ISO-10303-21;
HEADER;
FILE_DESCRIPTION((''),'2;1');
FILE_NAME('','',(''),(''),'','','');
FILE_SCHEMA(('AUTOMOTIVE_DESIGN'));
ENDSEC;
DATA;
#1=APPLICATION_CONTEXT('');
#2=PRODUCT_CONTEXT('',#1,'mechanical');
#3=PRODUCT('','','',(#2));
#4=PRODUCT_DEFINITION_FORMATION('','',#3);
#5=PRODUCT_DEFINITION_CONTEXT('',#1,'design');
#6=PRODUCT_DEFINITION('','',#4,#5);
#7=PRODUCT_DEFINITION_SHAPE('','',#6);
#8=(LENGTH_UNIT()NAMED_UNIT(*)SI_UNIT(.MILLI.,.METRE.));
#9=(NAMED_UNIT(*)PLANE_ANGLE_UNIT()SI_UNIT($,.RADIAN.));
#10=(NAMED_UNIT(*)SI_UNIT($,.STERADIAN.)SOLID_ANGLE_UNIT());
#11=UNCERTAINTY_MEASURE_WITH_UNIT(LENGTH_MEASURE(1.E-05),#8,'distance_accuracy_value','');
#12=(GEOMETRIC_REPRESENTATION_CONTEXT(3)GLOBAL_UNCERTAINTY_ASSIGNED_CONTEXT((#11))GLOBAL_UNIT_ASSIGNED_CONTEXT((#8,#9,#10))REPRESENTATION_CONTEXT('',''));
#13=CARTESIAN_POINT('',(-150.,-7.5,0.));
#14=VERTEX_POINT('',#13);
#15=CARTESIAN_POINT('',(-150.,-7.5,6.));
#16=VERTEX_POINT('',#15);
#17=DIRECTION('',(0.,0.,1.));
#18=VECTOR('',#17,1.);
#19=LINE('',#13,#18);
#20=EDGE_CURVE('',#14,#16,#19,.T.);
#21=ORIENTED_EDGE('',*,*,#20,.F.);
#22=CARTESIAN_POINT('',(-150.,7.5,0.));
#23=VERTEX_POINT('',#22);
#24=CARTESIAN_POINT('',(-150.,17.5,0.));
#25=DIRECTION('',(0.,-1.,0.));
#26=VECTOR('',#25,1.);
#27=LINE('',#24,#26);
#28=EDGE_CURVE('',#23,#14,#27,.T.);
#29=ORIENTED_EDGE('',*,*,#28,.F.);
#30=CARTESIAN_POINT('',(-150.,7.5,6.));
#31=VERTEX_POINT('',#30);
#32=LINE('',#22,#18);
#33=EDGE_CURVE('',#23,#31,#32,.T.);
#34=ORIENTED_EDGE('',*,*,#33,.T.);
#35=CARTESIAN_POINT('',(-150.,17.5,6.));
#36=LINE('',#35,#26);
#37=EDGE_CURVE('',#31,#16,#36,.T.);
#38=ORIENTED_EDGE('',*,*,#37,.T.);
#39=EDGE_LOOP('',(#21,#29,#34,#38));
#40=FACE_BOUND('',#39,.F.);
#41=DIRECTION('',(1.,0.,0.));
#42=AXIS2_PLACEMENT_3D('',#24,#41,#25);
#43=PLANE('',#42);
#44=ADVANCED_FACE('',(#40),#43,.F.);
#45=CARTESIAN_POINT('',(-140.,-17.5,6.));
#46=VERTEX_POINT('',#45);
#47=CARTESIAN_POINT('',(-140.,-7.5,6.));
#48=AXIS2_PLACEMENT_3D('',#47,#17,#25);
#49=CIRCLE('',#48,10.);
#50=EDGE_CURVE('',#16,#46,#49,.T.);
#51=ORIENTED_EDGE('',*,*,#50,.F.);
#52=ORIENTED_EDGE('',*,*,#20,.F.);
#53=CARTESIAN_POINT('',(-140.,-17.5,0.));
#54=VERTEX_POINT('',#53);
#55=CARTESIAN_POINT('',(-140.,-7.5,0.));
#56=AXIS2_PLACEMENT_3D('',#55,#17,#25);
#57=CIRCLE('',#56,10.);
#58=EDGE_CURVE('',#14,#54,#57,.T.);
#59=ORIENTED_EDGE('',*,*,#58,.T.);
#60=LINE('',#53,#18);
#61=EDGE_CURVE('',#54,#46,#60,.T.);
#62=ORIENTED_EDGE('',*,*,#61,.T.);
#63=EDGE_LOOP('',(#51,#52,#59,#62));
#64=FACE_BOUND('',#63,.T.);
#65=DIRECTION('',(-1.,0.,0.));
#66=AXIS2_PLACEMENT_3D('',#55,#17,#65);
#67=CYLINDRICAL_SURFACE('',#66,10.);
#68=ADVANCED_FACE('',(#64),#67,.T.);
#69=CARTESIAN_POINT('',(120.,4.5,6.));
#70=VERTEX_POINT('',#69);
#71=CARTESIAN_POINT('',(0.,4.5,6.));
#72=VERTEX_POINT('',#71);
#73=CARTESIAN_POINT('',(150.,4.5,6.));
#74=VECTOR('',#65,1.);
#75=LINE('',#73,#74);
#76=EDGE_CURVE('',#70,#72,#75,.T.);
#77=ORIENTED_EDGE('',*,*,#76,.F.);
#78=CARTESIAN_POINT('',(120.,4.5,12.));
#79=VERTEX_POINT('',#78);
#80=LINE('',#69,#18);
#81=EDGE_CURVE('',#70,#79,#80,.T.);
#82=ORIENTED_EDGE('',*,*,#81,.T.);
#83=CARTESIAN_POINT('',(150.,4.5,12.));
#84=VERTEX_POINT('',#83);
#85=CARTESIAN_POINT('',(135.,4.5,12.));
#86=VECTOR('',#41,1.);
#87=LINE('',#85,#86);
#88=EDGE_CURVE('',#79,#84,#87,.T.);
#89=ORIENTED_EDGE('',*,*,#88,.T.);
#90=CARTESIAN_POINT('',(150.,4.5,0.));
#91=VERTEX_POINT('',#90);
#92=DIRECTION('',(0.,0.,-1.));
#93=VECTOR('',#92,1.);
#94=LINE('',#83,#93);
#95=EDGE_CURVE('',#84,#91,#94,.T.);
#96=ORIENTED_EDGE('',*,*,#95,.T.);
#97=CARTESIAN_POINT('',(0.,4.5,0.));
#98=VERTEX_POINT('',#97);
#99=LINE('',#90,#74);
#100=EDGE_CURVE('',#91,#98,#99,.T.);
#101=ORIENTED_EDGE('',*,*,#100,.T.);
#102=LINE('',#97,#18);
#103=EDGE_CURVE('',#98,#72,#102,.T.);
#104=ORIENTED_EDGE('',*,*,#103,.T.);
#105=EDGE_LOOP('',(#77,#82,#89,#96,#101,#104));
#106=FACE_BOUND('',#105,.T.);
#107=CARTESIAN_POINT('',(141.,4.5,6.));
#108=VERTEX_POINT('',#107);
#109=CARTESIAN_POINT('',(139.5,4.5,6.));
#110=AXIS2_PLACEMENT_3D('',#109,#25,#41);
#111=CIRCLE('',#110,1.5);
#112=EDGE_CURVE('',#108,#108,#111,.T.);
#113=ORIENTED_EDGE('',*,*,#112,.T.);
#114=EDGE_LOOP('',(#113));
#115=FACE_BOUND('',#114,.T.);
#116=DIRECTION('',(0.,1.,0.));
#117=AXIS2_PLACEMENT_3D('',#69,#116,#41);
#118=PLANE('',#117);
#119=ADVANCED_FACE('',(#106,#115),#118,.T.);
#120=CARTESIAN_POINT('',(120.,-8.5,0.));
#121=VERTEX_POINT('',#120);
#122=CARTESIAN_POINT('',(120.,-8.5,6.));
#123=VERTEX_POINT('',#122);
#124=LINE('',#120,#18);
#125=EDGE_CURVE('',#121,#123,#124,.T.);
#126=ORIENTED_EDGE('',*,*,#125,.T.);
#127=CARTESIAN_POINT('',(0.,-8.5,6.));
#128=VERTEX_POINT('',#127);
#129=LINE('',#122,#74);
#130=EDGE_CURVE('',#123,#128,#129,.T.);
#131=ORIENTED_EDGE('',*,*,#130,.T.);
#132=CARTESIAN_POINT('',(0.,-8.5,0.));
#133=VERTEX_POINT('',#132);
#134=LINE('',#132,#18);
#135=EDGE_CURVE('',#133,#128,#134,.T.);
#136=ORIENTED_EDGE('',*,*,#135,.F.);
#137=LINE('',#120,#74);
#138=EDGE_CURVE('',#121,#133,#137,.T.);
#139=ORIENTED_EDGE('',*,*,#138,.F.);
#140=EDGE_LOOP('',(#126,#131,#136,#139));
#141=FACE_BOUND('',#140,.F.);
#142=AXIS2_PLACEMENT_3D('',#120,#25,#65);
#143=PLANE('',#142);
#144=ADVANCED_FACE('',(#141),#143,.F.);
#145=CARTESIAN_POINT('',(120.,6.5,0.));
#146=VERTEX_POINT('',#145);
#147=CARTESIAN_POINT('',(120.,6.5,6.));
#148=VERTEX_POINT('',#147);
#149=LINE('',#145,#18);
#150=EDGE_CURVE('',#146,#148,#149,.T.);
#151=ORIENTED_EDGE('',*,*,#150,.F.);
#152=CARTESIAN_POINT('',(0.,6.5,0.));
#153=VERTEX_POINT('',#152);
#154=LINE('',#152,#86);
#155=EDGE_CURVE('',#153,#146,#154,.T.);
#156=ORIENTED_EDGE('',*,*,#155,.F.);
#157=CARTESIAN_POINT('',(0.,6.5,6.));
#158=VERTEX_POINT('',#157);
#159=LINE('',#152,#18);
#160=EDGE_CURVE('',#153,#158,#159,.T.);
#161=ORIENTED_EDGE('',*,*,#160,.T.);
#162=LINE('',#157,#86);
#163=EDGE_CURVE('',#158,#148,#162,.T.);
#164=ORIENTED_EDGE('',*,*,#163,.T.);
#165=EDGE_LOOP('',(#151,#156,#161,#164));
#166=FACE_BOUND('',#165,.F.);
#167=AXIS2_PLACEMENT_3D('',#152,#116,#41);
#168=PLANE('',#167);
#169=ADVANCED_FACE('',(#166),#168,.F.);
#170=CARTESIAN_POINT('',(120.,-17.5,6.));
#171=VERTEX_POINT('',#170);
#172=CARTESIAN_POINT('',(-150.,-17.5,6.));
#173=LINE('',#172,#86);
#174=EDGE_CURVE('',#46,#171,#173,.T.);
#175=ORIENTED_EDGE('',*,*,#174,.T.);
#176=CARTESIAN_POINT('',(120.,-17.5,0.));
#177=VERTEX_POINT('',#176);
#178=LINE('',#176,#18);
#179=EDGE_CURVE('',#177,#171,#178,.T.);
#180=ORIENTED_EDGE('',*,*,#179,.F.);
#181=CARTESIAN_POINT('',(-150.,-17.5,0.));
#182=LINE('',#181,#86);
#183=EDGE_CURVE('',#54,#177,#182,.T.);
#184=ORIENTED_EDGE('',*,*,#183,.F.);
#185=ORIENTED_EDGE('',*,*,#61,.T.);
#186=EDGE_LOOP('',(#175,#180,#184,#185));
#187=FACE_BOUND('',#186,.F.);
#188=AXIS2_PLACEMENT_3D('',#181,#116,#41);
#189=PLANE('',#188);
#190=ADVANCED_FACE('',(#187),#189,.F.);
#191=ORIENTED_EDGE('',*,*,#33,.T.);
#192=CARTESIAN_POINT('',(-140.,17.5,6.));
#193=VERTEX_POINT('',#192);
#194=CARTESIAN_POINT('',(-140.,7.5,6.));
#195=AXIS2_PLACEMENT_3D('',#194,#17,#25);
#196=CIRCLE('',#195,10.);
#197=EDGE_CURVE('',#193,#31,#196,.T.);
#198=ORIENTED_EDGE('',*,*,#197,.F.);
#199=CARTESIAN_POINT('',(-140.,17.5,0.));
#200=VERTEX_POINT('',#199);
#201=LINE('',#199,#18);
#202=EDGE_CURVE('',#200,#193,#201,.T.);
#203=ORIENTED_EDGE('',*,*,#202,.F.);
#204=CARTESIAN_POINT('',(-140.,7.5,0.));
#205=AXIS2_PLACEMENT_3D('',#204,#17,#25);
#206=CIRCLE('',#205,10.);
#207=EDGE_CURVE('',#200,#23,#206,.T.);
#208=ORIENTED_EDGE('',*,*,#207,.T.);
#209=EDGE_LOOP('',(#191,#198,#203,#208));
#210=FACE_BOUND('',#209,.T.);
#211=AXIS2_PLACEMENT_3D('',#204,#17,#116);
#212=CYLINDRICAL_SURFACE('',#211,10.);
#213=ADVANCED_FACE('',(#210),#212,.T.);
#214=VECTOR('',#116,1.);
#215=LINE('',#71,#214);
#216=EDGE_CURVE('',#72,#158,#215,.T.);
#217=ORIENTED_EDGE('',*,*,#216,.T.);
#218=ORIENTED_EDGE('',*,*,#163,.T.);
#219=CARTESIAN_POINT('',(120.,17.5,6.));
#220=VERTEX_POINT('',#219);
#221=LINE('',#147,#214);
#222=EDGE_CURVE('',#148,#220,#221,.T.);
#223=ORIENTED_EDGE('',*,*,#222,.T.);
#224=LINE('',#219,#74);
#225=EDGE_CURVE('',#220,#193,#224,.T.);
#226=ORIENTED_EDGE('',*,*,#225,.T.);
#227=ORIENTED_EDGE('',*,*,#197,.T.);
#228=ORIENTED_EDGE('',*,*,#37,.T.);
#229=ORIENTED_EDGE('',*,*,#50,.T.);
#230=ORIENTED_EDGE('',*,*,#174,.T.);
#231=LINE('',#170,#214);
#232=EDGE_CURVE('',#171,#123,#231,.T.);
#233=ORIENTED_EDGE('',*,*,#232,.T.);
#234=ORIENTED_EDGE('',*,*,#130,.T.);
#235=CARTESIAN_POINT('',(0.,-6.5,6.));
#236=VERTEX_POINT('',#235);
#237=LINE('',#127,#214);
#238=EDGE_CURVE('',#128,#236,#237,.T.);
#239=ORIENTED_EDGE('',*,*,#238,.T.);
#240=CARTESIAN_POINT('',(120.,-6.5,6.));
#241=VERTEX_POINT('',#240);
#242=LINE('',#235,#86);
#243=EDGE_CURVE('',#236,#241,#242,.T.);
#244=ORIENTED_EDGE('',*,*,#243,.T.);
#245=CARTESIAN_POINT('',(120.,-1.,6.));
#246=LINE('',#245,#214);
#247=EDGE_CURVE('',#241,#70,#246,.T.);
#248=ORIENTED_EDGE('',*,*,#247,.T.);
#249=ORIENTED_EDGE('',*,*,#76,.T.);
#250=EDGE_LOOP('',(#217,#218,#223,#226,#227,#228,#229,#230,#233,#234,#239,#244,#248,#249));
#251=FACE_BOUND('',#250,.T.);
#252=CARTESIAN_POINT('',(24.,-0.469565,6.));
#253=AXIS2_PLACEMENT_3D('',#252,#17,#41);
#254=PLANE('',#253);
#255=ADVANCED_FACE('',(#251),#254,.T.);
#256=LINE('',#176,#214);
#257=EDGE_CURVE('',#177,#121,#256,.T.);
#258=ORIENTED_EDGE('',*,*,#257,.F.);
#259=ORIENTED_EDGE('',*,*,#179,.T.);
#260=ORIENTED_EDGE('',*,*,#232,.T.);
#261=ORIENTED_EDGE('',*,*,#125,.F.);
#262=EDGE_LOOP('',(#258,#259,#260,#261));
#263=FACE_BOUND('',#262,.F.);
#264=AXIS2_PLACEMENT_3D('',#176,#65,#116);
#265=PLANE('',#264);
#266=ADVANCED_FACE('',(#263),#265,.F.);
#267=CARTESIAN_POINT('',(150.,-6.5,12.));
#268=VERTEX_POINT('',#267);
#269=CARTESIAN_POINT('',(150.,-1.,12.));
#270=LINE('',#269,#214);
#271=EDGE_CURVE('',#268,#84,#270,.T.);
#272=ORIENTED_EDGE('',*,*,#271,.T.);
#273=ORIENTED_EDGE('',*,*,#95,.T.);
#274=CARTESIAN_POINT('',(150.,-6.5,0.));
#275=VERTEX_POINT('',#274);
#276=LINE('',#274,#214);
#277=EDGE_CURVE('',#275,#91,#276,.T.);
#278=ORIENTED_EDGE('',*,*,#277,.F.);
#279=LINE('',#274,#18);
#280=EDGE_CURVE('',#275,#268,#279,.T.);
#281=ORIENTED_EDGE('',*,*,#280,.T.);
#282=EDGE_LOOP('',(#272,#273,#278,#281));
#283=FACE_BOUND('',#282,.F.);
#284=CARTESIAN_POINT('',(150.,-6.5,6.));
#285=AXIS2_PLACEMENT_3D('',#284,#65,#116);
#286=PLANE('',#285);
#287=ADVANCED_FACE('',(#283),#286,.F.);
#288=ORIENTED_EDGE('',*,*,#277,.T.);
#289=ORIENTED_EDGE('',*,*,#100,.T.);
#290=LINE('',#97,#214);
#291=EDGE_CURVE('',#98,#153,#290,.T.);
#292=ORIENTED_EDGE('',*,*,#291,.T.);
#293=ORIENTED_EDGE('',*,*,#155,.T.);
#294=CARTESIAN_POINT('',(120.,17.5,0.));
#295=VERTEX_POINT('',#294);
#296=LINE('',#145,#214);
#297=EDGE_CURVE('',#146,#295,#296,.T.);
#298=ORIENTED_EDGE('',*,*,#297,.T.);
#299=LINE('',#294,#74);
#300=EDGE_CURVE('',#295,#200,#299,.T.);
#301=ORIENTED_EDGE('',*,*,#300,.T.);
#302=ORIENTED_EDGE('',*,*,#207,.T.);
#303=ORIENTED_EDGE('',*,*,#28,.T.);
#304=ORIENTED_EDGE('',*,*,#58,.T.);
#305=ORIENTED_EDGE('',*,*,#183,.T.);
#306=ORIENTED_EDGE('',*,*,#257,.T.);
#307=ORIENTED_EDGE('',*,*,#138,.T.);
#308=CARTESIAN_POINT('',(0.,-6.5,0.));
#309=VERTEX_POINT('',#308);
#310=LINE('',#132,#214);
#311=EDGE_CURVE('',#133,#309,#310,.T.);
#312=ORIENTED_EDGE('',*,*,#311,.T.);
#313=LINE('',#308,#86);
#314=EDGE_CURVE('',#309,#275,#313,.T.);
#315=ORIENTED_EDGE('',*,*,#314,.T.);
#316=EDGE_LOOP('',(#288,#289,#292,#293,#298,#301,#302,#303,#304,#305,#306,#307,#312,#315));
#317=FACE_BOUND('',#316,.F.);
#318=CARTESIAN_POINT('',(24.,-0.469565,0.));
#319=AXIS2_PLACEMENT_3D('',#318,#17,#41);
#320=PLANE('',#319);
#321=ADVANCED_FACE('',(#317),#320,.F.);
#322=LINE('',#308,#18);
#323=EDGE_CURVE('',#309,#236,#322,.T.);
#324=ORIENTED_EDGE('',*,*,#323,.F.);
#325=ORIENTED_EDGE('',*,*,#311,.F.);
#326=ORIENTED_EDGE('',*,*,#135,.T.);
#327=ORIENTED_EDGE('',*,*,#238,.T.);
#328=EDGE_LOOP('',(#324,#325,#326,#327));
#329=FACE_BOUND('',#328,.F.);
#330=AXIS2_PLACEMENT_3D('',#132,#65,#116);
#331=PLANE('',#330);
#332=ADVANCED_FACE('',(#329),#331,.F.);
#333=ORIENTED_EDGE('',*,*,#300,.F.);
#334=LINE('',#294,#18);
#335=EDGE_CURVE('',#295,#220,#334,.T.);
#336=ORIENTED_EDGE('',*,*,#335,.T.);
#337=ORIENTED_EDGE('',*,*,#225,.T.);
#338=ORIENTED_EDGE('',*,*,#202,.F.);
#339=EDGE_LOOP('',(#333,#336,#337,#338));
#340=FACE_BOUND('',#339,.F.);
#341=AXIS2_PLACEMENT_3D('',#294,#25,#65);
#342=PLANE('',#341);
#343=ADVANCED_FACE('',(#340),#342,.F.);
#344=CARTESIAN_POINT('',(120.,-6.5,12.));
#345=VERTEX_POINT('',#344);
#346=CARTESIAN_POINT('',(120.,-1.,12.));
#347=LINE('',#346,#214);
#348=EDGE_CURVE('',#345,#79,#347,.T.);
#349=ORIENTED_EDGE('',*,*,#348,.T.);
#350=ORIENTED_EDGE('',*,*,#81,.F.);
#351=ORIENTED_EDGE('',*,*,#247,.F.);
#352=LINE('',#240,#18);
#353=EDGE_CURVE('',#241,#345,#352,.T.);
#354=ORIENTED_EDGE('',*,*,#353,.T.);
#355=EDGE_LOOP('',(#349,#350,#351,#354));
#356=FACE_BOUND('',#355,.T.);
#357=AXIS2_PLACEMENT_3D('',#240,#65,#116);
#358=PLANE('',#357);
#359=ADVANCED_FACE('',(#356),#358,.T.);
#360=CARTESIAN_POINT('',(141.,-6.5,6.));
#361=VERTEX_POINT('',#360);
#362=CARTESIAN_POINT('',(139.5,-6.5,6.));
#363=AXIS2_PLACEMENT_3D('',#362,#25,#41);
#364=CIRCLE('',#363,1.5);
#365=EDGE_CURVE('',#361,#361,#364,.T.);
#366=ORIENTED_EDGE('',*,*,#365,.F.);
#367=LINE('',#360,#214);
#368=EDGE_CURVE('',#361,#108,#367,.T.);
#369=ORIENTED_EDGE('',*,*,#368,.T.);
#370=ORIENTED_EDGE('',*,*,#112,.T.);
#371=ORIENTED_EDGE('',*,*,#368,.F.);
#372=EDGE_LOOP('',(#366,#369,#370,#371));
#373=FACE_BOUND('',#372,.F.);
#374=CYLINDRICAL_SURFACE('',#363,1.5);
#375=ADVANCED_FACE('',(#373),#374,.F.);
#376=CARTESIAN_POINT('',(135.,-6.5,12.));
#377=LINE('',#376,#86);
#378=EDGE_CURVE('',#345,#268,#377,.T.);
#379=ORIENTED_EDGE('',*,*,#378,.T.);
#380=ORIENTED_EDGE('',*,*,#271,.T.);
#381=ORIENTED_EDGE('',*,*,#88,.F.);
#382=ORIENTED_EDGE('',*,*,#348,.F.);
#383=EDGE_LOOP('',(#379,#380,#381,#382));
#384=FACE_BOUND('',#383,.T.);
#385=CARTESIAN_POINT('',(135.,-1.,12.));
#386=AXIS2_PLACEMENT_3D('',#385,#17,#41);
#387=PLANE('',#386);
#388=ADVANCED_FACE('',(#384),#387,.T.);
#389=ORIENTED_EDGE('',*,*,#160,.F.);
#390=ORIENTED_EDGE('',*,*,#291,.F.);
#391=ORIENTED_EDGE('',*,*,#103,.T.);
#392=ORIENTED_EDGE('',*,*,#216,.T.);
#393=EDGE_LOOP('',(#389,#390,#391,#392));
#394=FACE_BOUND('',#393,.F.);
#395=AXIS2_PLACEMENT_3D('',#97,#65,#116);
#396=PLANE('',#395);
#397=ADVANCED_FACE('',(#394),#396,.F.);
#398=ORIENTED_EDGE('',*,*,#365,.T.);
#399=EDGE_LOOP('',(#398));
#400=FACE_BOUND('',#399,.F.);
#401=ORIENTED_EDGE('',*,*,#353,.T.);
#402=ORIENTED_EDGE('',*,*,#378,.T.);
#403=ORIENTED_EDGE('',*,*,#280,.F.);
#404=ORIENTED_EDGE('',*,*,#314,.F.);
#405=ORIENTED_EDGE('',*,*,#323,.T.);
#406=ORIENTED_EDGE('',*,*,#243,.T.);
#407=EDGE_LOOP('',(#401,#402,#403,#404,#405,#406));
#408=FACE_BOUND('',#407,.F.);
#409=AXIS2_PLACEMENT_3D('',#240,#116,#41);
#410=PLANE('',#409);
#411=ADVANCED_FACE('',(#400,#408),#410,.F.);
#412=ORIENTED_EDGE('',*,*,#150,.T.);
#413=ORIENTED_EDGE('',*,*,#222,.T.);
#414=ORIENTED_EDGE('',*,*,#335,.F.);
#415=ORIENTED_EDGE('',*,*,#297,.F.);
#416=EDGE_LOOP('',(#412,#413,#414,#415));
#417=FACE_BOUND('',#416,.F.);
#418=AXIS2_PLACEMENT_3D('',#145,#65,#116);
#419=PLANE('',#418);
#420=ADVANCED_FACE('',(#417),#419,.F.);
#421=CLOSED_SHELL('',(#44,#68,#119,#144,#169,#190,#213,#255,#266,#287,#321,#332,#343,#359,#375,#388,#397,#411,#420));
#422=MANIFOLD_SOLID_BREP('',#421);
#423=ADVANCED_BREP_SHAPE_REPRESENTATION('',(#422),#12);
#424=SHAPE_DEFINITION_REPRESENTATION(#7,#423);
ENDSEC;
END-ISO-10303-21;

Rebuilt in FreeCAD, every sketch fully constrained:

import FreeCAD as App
import Part
import Sketcher
from FreeCAD import Vector
Q = App.Units.Quantity


def edges_at(feature, points):
    """Names of the edges that pass closest to the given points."""
    edges = feature.Shape.Edges
    near = lambda p: min(range(len(edges)), key=lambda i: edges[i].distToShape(Part.Vertex(*p))[0])
    return sorted({f"Edge{near(p) + 1}" for p in points})


def add_polygon(sketch, points):
    """Adds a closed chain of lines whose ends are joined by coincident constraints."""
    first, n = sketch.GeometryCount, len(points)
    for a, b in zip(points, points[1:] + points[:1]):
        sketch.addGeometry(Part.LineSegment(App.Vector(*a, 0), App.Vector(*b, 0)), False)
    for i in range(n):
        sketch.addConstraint(Sketcher.Constraint("Coincident", first + i, 2, first + (i + 1) % n, 1))

doc = App.newDocument("Part")
body = doc.addObject("PartDesign::Body", "Body")

sketch1 = doc.addObject("Sketcher::SketchObject", "Sketch")
body.addObject(sketch1)
sketch1.AttachmentSupport = (doc.XY_Plane, [""])
sketch1.MapMode = "FlatFace"
add_polygon(sketch1, [(120, 17.5), (-150, 17.5), (-150, -17.5), (120, -17.5), (120, -8.5), (0, -8.5), (0, -6.5), (150, -6.5), (150, 4.5), (0, 4.5), (0, 6.5), (120, 6.5)])
sketch1.addConstraint([
    Sketcher.Constraint("Horizontal", 0),
    Sketcher.Constraint("Vertical", 1),
    Sketcher.Constraint("Horizontal", 2),
    Sketcher.Constraint("Vertical", 3),
    Sketcher.Constraint("Horizontal", 4),
    Sketcher.Constraint("Vertical", 5),
    Sketcher.Constraint("Horizontal", 6),
    Sketcher.Constraint("Vertical", 7),
    Sketcher.Constraint("Horizontal", 8),
    Sketcher.Constraint("Vertical", 9),
    Sketcher.Constraint("Horizontal", 10),
    Sketcher.Constraint("Vertical", 11),
    Sketcher.Constraint("Symmetric", 5, 2, 9, 2, -1, 1),
    Sketcher.Constraint("Symmetric", 2, 2, 11, 2, -1),
    Sketcher.Constraint("PointOnObject", 4, 2, -2),
    Sketcher.Constraint("Equal", 5, 9),
    Sketcher.Constraint("Equal", 7, 11),
    Sketcher.Constraint("DistanceX", 0, 2, 0, 1, Q("270 mm")),
    Sketcher.Constraint("DistanceX", 4, 2, 4, 1, Q("120 mm")),
    Sketcher.Constraint("DistanceX", 6, 1, 6, 2, Q("150 mm")),
    Sketcher.Constraint("DistanceY", 1, 2, 1, 1, Q("35 mm")),
    Sketcher.Constraint("DistanceY", 3, 1, 3, 2, Q("9 mm")),
])
pad1 = doc.addObject("PartDesign::Pad", "Pad")
body.addObject(pad1)
pad1.Profile = sketch1
pad1.Length = 6
doc.recompute()

fillet = doc.addObject("PartDesign::Fillet", "Fillet")
body.addObject(fillet)
fillet.Base = (pad1, edges_at(pad1, [(-150, -17.5, 3), (-150, 17.5, 3)]))
fillet.Radius = 10

sketch2 = doc.addObject("Sketcher::SketchObject", "Sketch001")
body.addObject(sketch2)
sketch2.AttachmentSupport = (doc.XY_Plane, [""])
sketch2.MapMode = "FlatFace"
sketch2.AttachmentOffset = App.Placement(Vector(0, 0, 6), App.Rotation())
add_polygon(sketch2, [(120, 4), (120, -6), (150, -6), (150, 4)])
sketch2.addConstraint([
    Sketcher.Constraint("Vertical", 0),
    Sketcher.Constraint("Horizontal", 1),
    Sketcher.Constraint("Vertical", 2),
    Sketcher.Constraint("Horizontal", 3),
    Sketcher.Constraint("DistanceX", 1, 1, 1, 2, Q("30 mm")),
    Sketcher.Constraint("DistanceY", 0, 2, 0, 1, Q("11 mm")),
    Sketcher.Constraint("DistanceX", -1, 1, 0, 2, Q("120 mm")),
    Sketcher.Constraint("DistanceY", 0, 2, -1, 1, Q("6.5 mm")),
])
pad2 = doc.addObject("PartDesign::Pad", "Pad001")
body.addObject(pad2)
pad2.Profile = sketch2
pad2.Length = 6

sketch3 = doc.addObject("Sketcher::SketchObject", "Sketch002")
body.addObject(sketch3)
sketch3.AttachmentSupport = (doc.XZ_Plane, [""])
sketch3.MapMode = "FlatFace"
sketch3.AttachmentOffset = App.Placement(Vector(0, 0, 6.5), App.Rotation())
sketch3.addGeometry(Part.Circle(Vector(139.5, 6, 0), Vector(0, 0, 1), 1.5), False)
sketch3.addConstraint([
    Sketcher.Constraint("Diameter", 0, Q("3 mm")),
    Sketcher.Constraint("DistanceY", -1, 1, 0, 3, Q("6 mm")),
    Sketcher.Constraint("DistanceX", -1, 1, 0, 3, Q("139.5 mm")),
])
pocket1 = doc.addObject("PartDesign::Pocket", "Pocket")
body.addObject(pocket1)
pocket1.Profile = sketch3
pocket1.Length = 25

doc.recompute()
